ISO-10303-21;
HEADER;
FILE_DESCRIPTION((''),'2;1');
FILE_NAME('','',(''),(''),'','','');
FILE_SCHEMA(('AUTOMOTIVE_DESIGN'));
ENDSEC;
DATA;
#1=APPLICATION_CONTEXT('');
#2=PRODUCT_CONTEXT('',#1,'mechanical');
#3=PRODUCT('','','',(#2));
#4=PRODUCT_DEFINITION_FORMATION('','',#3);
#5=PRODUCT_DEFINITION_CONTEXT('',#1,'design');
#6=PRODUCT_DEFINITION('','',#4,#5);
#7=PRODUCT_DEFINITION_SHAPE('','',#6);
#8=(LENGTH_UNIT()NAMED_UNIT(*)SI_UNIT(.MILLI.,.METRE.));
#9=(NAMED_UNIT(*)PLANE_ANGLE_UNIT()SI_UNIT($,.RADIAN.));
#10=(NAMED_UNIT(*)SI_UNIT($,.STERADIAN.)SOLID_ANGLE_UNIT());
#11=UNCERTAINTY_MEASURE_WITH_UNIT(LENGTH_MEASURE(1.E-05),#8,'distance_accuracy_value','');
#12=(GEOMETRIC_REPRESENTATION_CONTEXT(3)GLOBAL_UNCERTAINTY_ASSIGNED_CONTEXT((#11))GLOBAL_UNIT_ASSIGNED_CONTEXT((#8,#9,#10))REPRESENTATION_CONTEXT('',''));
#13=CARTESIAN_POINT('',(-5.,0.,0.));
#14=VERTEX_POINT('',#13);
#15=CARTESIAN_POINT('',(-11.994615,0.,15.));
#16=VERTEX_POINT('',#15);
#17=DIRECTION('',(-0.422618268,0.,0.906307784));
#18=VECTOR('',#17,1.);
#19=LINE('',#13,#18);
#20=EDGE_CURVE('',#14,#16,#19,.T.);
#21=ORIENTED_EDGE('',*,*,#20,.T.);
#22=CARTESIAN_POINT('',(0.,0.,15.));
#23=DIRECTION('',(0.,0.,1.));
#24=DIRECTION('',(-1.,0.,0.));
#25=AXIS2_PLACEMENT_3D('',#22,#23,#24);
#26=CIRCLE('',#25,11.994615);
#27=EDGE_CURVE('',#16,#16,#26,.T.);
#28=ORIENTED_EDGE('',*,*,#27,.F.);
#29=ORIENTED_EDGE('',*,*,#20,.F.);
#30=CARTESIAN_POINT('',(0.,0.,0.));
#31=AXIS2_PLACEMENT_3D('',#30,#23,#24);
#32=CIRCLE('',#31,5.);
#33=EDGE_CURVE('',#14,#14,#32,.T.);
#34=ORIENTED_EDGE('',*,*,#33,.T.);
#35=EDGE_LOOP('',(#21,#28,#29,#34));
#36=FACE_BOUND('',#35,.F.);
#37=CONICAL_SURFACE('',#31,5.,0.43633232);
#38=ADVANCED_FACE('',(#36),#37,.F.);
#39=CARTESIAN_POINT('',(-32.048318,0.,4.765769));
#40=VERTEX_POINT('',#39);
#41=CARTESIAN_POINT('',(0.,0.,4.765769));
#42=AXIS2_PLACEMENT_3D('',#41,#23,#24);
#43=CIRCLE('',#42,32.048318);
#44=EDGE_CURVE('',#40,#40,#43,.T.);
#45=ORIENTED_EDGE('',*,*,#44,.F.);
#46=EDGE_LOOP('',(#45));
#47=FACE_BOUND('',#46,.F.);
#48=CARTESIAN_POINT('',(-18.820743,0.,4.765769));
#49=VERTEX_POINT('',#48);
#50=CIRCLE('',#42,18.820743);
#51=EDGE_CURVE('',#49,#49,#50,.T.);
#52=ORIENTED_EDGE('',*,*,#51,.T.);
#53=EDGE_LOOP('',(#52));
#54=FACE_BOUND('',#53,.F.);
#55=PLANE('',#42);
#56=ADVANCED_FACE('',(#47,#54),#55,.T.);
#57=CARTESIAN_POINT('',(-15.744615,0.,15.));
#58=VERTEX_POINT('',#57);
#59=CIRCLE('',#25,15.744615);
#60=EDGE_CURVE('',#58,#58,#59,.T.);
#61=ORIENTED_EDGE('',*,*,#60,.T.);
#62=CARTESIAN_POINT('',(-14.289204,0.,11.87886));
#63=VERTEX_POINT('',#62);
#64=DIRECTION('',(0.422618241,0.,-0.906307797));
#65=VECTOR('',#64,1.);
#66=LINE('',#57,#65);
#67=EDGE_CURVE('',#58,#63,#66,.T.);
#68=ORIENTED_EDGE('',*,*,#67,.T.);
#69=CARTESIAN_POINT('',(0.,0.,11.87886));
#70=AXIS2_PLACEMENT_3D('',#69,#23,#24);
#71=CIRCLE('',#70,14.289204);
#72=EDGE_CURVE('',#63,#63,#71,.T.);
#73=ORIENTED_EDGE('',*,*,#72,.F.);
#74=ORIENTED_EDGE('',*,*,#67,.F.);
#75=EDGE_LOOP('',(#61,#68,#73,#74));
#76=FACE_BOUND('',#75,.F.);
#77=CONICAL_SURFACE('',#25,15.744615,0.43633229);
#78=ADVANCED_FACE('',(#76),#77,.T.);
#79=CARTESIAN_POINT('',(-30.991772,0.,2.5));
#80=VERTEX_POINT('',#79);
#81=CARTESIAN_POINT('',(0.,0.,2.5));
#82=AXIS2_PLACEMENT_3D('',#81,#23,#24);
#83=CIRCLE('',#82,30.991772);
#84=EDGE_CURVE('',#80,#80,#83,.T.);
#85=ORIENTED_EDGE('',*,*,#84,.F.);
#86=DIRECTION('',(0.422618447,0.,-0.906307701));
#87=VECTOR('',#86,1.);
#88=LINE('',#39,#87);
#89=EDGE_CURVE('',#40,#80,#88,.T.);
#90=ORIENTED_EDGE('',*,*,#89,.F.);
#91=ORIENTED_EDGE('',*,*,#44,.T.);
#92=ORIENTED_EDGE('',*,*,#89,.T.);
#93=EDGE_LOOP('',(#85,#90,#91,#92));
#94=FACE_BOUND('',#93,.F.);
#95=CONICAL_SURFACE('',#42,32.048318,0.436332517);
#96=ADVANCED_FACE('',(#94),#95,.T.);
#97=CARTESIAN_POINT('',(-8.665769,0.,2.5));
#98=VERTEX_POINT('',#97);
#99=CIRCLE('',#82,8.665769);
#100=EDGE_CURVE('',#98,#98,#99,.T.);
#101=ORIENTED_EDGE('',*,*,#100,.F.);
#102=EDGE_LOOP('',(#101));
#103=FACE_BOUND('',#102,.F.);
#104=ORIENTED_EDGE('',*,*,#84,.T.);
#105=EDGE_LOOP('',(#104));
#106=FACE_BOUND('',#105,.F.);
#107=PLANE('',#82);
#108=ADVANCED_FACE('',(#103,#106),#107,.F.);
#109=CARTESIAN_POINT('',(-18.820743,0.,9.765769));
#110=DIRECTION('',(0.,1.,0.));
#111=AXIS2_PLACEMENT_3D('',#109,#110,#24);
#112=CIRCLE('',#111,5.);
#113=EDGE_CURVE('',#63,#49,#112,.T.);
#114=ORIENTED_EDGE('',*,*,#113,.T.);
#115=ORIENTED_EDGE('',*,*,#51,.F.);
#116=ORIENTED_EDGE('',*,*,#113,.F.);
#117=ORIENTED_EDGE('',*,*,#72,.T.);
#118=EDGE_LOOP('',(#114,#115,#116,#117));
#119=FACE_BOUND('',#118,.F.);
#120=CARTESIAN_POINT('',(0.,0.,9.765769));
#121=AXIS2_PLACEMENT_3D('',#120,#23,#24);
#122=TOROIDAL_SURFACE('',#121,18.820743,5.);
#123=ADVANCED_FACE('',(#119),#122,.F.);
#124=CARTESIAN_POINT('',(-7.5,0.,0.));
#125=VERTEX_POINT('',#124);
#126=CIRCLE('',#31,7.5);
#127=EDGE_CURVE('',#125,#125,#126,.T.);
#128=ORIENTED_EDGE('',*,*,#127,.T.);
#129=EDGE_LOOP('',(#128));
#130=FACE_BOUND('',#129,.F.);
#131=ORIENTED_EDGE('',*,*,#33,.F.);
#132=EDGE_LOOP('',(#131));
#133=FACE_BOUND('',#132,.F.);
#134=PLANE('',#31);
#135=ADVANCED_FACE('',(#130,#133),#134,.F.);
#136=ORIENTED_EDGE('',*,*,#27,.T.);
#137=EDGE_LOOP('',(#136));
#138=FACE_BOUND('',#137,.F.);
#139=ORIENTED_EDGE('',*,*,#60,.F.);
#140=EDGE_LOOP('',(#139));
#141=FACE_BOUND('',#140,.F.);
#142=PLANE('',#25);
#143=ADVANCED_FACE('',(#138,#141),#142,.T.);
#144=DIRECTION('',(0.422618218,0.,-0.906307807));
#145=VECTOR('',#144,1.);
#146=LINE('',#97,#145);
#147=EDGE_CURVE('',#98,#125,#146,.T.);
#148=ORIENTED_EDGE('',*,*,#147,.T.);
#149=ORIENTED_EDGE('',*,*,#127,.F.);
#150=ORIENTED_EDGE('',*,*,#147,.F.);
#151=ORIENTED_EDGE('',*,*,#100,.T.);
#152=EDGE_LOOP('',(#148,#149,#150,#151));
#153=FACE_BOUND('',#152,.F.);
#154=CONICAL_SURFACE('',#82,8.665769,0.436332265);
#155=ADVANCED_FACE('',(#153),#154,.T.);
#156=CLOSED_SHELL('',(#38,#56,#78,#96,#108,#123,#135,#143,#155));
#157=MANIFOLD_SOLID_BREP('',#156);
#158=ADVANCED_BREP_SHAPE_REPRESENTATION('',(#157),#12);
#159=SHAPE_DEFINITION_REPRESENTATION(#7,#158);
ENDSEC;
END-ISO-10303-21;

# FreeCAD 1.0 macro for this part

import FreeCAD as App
import Part
import Sketcher
from FreeCAD import Vector
Q = App.Units.Quantity


def edges_at(feature, points):
    """Names of the edges that pass closest to the given points."""
    edges = feature.Shape.Edges
    near = lambda p: min(range(len(edges)), key=lambda i: edges[i].distToShape(Part.Vertex(*p))[0])
    return sorted({f"Edge{near(p) + 1}" for p in points})


def add_polygon(sketch, points):
    """Adds a closed chain of lines whose ends are joined by coincident constraints."""
    first, n = sketch.GeometryCount, len(points)
    for a, b in zip(points, points[1:] + points[:1]):
        sketch.addGeometry(Part.LineSegment(App.Vector(*a, 0), App.Vector(*b, 0)), False)
    for i in range(n):
        sketch.addConstraint(Sketcher.Constraint("Coincident", first + i, 2, first + (i + 1) % n, 1))

doc = App.newDocument("Part")
body = doc.addObject("PartDesign::Body", "Body")

# Sketch on XZ plane
sketch1 = body.newObject("Sketcher::SketchObject", "Sketch")
sketch1.AttachmentSupport = (doc.getObject("XZ_Plane"), [""])
sketch1.MapMode = "FlatFace"
add_polygon(sketch1, [(-7.5, 0), (-5, 0), (-12, 15), (-15.7, 15), (-11, 4.8), (-32, 4.8), (-31, 2.5), (-8.7, 2.5)])  # lines 0-7
sketch1.addConstraint([
    Sketcher.Constraint("Horizontal", 0),
    Sketcher.Constraint("Horizontal", 2),
    Sketcher.Constraint("Horizontal", 4),
    Sketcher.Constraint("Horizontal", 6),
    Sketcher.Constraint("PointOnObject", 0, 2, -1),
    Sketcher.Constraint("Parallel", 1, 3),
    Sketcher.Constraint("Parallel", 3, 5),
    Sketcher.Constraint("Parallel", 5, 7),
    Sketcher.Constraint("Angle", 1, Q("115 deg")),
    Sketcher.Constraint("DistanceX", 0, 1, 0, 2, Q("2.5 mm")),
    Sketcher.Constraint("DistanceX", 0, 2, -1, 1, Q("5 mm")),
    Sketcher.Constraint("DistanceY", -1, 1, 1, 2, Q("15 mm")),
    Sketcher.Constraint("Distance", 5, Q("2.5 mm")),
    Sketcher.Constraint("DistanceX", 2, 2, 2, 1, Q("3.75 mm")),
    Sketcher.Constraint("DistanceY", -1, 1, 5, 2, Q("2.5 mm")),
    Sketcher.Constraint("DistanceX", 4, 2, 4, 1, Q("21.076003 mm")),
])
revolution = body.newObject("PartDesign::Revolution", "Revolution")
revolution.Profile = sketch1
revolution.ReferenceAxis = (sketch1, ["V_Axis"])
revolution.Angle = 360
doc.recompute()

fillet = body.newObject("PartDesign::Fillet", "Fillet")
fillet.Base = (revolution, edges_at(revolution, [(10.972, 0, 4.766)]))
fillet.Radius = 5

doc.recompute()
